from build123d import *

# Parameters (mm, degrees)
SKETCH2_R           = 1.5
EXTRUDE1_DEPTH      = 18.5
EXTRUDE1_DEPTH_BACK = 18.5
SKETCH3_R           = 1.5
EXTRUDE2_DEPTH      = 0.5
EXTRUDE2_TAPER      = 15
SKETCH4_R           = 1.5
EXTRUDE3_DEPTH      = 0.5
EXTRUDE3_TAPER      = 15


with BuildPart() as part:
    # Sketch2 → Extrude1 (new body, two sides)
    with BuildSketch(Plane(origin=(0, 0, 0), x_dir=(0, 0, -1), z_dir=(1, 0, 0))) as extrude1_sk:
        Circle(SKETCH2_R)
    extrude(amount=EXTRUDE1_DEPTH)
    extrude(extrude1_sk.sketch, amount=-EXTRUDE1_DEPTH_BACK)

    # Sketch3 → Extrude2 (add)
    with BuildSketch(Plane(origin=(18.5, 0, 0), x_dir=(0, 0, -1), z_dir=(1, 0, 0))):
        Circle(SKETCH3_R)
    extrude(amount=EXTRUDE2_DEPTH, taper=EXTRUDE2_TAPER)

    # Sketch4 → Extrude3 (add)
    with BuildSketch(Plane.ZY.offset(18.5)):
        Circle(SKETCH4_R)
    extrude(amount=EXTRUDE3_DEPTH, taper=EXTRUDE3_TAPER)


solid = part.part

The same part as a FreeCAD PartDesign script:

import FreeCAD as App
import Part
import Sketcher

doc = App.newDocument("Part")
body = doc.addObject("PartDesign::Body", "Body")

sketch1 = body.newObject("Sketcher::SketchObject", "Sketch")
sketch1.AttachmentSupport = (doc.getObject("YZ_Plane"), [""])
sketch1.MapMode = "FlatFace"
sketch1.addGeometry(Part.Circle(App.Vector(0, 0, 0), App.Vector(0, 0, 1), 1.5), False)
sketch1.addConstraint([
    Sketcher.Constraint("Coincident", 0, 3, -1, 1),
    Sketcher.Constraint("Diameter", 0, 3.0),
])
pad1 = body.newObject("PartDesign::Pad", "Pad")
pad1.Profile = sketch1
pad1.Type = "TwoLengths"
pad1.Length = 18.5
pad1.Length2 = 18.5

sketch2 = body.newObject("Sketcher::SketchObject", "Sketch001")
sketch2.AttachmentSupport = (doc.getObject("YZ_Plane"), [""])
sketch2.MapMode = "FlatFace"
sketch2.AttachmentOffset = App.Placement(App.Vector(0, 0, 18.5), App.Rotation())
sketch2.addGeometry(Part.Circle(App.Vector(0, 0, 0), App.Vector(0, 0, 1), 1.5), False)
sketch2.addConstraint([
    Sketcher.Constraint("Coincident", 0, 3, -1, 1),
    Sketcher.Constraint("Diameter", 0, 3.0),
])
pad2 = body.newObject("PartDesign::Pad", "Pad001")
pad2.Profile = sketch2
pad2.Length = 0.5
pad2.TaperAngle = -15

sketch3 = body.newObject("Sketcher::SketchObject", "Sketch002")
sketch3.AttachmentSupport = (doc.getObject("YZ_Plane"), [""])
sketch3.MapMode = "FlatFace"
sketch3.AttachmentOffset = App.Placement(App.Vector(0, 0, -18.5), App.Rotation())
sketch3.addGeometry(Part.Circle(App.Vector(0, 0, 0), App.Vector(0, 0, 1), 1.5), False)
sketch3.addConstraint([
    Sketcher.Constraint("Coincident", 0, 3, -1, 1),
    Sketcher.Constraint("Diameter", 0, 3.0),
])
pad3 = body.newObject("PartDesign::Pad", "Pad002")
pad3.Profile = sketch3
pad3.Length = 0.5
pad3.Reversed = True
pad3.TaperAngle = -15

doc.recompute()
